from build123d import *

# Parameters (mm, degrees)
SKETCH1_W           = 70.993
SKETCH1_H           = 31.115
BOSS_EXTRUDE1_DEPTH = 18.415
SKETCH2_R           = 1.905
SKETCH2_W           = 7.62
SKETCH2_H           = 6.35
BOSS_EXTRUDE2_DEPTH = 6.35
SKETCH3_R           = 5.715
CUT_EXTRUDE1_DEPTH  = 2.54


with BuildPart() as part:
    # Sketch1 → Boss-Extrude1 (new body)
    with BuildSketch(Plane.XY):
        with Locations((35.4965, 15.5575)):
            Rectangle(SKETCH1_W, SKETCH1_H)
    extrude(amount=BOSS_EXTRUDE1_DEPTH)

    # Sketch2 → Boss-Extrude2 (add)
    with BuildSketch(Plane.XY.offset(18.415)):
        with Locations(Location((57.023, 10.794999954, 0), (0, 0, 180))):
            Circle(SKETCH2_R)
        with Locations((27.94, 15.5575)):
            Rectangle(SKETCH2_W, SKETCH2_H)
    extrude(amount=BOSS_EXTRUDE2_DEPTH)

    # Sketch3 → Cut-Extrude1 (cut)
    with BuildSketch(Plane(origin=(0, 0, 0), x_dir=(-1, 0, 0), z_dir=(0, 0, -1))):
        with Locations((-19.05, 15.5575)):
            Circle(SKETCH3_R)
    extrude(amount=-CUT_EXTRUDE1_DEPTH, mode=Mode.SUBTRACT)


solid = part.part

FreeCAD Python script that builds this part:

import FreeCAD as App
import Part
import Sketcher

V = App.Vector
Q = App.Units.Quantity


def add_polygon(sketch, points):
    """Adds a closed chain of lines whose ends are joined by coincident constraints."""
    first, n = sketch.GeometryCount, len(points)
    for a, b in zip(points, points[1:] + points[:1]):
        sketch.addGeometry(Part.LineSegment(App.Vector(*a, 0), App.Vector(*b, 0)), False)
    for i in range(n):
        sketch.addConstraint(Sketcher.Constraint("Coincident", first + i, 2, first + (i + 1) % n, 1))

doc = App.newDocument("Part")
params = doc.addObject("Spreadsheet::Sheet", "Params")
for row, (alias, value) in enumerate([
    ("sketch1_width", "2.795 in"),
    ("sketch1_height", "1.225 in"),
    ("pad1_length", "0.725 in"),
    ("sketch2_diameter", "0.15 in"),
    ("sketch2_width", "0.3 in"),
    ("sketch2_height", "0.25 in"),
    ("pad2_length", "0.25 in"),
    ("sketch3_diameter", "0.45 in"),
    ("pocket1_length", "0.1 in"),
], start=1):
    params.set(f"A{row}", alias)
    params.set(f"B{row}", "=" + value)
    params.setAlias(f"B{row}", alias)

body = doc.addObject("PartDesign::Body", "Body")

sketch1 = doc.addObject("Sketcher::SketchObject", "Sketch")
body.addObject(sketch1)
sketch1.AttachmentSupport = (doc.XY_Plane, [""])
sketch1.MapMode = "FlatFace"
add_polygon(sketch1, [(0, 31), (0, 0), (71, 0), (71, 31)])
sketch1.addConstraint(Sketcher.Constraint("Vertical", 0))
sketch1.addConstraint(Sketcher.Constraint("Horizontal", 1))
sketch1.addConstraint(Sketcher.Constraint("Vertical", 2))
sketch1.addConstraint(Sketcher.Constraint("Horizontal", 3))
sketch1.addConstraint(Sketcher.Constraint("Coincident", 0, 2, -1, 1))
sketch1.addConstraint(Sketcher.Constraint("DistanceX", 1, 1, 1, 2, Q("2.795 in")))
sketch1.addConstraint(Sketcher.Constraint("DistanceY", 0, 2, 0, 1, Q("1.225 in")))
sketch1.setExpression("Constraints[9]", "Params.sketch1_width")
sketch1.setExpression("Constraints[10]", "Params.sketch1_height")
pad1 = doc.addObject("PartDesign::Pad", "Pad")
body.addObject(pad1)
pad1.Profile = sketch1
pad1.setExpression("Length", "Params.pad1_length")

sketch2 = doc.addObject("Sketcher::SketchObject", "Sketch001")
body.addObject(sketch2)
sketch2.AttachmentSupport = (doc.XY_Plane, [""])
sketch2.MapMode = "FlatFace"
sketch2.AttachmentOffset = App.Placement(V(0, 0, 0.725 * 25.4), App.Rotation())
sketch2.addGeometry(Part.Circle(V(57, 10.8, 0), V(0, 0, 1), 1.9), False)
add_polygon(sketch2, [(24.1, 18.7), (24.1, 12.4), (31.8, 12.4), (31.8, 18.7)])
sketch2.addConstraint(Sketcher.Constraint("Vertical", 1))
sketch2.addConstraint(Sketcher.Constraint("Horizontal", 2))
sketch2.addConstraint(Sketcher.Constraint("Vertical", 3))
sketch2.addConstraint(Sketcher.Constraint("Horizontal", 4))
sketch2.addConstraint(Sketcher.Constraint("Diameter", 0, Q("0.15 in")))
sketch2.addConstraint(Sketcher.Constraint("DistanceX", 2, 1, 2, 2, Q("0.3 in")))
sketch2.addConstraint(Sketcher.Constraint("DistanceY", 1, 2, 1, 1, Q("0.25 in")))
sketch2.addConstraint(Sketcher.Constraint("DistanceX", -1, 1, 1, 2, Q("0.95 in")))
sketch2.addConstraint(Sketcher.Constraint("DistanceX", -1, 1, 0, 3, Q("2.245 in")))
sketch2.addConstraint(Sketcher.Constraint("DistanceY", -1, 1, 0, 3, Q("0.425 in")))
sketch2.addConstraint(Sketcher.Constraint("DistanceY", 0, 3, 1, 2, Q("0.0625 in")))
sketch2.setExpression("Constraints[8]", "Params.sketch2_diameter")
sketch2.setExpression("Constraints[9]", "Params.sketch2_width")
sketch2.setExpression("Constraints[10]", "Params.sketch2_height")
pad2 = doc.addObject("PartDesign::Pad", "Pad001")
body.addObject(pad2)
pad2.Profile = sketch2
pad2.setExpression("Length", "Params.pad2_length")

sketch3 = doc.addObject("Sketcher::SketchObject", "Sketch002")
body.addObject(sketch3)
sketch3.AttachmentSupport = (doc.XY_Plane, [""])
sketch3.MapMode = "FlatFace"
sketch3.addGeometry(Part.Circle(V(19, 16, 0), V(0, 0, 1), 6), False)
sketch3.addConstraint(Sketcher.Constraint("Diameter", 0, Q("0.45 in")))
sketch3.addConstraint(Sketcher.Constraint("DistanceX", -1, 1, 0, 3, Q("0.75 in")))
sketch3.addConstraint(Sketcher.Constraint("DistanceY", -1, 1, 0, 3, Q("0.6125 in")))
sketch3.setExpression("Constraints[0]", "Params.sketch3_diameter")
pocket1 = doc.addObject("PartDesign::Pocket", "Pocket")
body.addObject(pocket1)
pocket1.Profile = sketch3
pocket1.setExpression("Length", "Params.pocket1_length")
pocket1.Reversed = True

doc.recompute()
